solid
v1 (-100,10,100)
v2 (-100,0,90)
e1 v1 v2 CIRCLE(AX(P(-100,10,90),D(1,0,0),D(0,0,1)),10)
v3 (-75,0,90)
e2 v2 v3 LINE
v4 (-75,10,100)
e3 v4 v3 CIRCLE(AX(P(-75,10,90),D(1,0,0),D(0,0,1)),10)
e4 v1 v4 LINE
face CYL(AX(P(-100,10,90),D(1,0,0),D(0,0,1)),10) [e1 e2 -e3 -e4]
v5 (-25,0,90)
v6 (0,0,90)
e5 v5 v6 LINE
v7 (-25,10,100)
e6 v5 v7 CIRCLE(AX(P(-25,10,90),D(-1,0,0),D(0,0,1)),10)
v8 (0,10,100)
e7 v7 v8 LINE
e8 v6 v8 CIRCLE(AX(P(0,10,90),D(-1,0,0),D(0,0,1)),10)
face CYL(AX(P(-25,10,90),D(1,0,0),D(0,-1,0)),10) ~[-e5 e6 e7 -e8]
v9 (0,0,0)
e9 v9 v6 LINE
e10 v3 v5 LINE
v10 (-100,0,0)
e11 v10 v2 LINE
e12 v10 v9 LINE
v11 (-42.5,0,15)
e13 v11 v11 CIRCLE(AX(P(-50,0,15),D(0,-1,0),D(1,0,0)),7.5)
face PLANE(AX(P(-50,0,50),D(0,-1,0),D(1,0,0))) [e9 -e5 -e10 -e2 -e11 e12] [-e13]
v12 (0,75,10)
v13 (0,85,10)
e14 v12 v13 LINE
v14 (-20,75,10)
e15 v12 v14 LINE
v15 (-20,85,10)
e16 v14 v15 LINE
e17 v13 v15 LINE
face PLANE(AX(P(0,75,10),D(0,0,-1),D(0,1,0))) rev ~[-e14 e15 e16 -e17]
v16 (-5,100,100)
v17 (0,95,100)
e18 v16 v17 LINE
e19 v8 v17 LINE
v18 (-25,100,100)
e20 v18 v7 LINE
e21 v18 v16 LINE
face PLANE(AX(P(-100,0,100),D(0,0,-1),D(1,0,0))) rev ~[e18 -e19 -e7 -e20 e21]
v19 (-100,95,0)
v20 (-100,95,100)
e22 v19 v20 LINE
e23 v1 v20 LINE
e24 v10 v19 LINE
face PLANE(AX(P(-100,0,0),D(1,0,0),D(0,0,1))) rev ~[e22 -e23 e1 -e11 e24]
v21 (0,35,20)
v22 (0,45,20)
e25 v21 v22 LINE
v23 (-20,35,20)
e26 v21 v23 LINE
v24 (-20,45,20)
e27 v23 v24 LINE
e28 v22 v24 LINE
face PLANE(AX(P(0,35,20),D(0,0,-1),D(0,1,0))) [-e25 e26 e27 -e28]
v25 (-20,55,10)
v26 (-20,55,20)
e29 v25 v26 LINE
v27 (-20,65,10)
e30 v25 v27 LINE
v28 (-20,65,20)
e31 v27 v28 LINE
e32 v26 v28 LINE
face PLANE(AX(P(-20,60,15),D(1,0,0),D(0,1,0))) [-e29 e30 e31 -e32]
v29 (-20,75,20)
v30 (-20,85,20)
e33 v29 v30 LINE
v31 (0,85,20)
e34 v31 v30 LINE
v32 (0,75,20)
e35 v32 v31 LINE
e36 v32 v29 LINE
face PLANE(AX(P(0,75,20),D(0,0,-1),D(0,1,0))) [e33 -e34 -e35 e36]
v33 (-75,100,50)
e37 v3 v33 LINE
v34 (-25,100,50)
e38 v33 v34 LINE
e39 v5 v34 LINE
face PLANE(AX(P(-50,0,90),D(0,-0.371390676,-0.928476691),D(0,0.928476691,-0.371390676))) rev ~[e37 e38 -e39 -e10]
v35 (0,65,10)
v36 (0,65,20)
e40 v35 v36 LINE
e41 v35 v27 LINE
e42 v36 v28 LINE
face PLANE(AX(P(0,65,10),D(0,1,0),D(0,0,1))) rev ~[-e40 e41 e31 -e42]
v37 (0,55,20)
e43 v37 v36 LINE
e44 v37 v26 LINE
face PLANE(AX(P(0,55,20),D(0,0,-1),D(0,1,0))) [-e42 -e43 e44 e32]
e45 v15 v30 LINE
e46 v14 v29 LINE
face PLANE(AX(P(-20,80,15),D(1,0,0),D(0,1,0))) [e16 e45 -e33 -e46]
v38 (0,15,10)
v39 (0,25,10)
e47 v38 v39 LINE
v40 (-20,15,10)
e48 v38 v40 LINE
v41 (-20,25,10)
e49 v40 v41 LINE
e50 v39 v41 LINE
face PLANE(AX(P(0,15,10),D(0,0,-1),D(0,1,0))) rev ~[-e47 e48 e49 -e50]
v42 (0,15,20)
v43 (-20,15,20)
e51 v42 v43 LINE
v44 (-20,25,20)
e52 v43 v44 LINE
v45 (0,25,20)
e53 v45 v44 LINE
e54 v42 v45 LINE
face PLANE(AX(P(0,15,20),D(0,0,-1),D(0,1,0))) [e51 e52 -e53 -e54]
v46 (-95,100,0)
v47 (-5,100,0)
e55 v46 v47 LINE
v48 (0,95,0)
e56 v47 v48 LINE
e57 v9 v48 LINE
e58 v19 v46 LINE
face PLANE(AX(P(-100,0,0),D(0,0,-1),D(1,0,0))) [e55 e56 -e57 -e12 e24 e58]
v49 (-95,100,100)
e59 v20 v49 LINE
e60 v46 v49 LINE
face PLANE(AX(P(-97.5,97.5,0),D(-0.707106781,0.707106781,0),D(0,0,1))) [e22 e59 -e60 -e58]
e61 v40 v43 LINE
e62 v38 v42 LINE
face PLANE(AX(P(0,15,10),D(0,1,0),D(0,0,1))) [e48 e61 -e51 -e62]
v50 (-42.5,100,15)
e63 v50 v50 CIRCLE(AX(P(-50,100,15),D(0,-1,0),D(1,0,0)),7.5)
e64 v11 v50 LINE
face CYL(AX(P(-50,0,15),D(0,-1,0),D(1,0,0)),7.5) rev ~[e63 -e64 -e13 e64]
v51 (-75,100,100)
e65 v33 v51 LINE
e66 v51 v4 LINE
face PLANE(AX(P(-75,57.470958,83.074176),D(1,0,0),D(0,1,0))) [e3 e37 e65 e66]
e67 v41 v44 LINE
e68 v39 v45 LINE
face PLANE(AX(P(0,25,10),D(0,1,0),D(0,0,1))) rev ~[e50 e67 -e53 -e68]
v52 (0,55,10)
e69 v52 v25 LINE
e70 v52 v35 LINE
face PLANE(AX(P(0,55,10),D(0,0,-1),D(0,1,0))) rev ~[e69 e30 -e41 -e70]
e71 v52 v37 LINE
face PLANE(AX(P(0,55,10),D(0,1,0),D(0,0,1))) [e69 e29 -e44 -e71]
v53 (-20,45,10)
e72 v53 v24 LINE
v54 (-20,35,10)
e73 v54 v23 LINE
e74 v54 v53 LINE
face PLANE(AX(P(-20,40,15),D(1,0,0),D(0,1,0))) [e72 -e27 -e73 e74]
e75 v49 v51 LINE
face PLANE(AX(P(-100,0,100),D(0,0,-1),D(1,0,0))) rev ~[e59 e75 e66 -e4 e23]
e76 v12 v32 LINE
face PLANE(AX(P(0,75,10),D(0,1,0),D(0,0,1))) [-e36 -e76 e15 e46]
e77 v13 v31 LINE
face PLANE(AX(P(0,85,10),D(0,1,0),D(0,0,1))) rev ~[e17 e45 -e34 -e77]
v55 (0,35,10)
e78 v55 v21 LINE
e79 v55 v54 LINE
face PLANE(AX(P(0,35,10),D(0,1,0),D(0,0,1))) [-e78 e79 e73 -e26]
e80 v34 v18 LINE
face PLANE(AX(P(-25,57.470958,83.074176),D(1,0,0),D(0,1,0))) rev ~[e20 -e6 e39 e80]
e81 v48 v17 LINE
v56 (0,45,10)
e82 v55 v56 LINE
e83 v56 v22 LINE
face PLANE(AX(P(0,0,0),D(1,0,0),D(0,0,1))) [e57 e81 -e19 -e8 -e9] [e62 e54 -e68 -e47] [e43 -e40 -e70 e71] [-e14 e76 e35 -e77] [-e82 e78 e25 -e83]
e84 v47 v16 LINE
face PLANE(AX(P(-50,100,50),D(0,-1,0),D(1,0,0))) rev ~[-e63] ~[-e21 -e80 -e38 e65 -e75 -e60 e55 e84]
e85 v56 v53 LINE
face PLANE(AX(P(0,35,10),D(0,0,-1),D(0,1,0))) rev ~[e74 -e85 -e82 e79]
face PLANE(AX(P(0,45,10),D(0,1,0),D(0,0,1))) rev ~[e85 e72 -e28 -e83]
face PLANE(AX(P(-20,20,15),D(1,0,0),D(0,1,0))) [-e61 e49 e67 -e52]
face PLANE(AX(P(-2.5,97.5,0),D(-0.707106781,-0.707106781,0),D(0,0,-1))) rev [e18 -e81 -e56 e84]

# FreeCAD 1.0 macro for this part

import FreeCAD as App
import Part
import Sketcher

V = App.Vector


def edges_at(feature, points):
    """Names of the edges that pass closest to the given points."""
    edges = feature.Shape.Edges
    near = lambda p: min(range(len(edges)), key=lambda i: edges[i].distToShape(Part.Vertex(*p))[0])
    return sorted({f"Edge{near(p) + 1}" for p in points})


def add_polygon(sketch, points):
    """Adds a closed chain of lines whose ends are joined by coincident constraints."""
    first, n = sketch.GeometryCount, len(points)
    for a, b in zip(points, points[1:] + points[:1]):
        sketch.addGeometry(Part.LineSegment(App.Vector(*a, 0), App.Vector(*b, 0)), False)
    for i in range(n):
        sketch.addConstraint(Sketcher.Constraint("Coincident", first + i, 2, first + (i + 1) % n, 1))

doc = App.newDocument("Part")
body = doc.addObject("PartDesign::Body", "Body")

sketch1 = body.newObject("Sketcher::SketchObject", "Sketch")
sketch1.AttachmentSupport = (doc.getObject("XZ_Plane"), [""])
sketch1.MapMode = "FlatFace"
add_polygon(sketch1, [(-100, 100), (-100, 0), (0, 0), (0, 100)])
sketch1.addGeometry(Part.Circle(V(-50, 15, 0), V(0, 0, 1), 7.5), False)
sketch1.addConstraint([
    Sketcher.Constraint("Vertical", 0),
    Sketcher.Constraint("Horizontal", 1),
    Sketcher.Constraint("Vertical", 2),
    Sketcher.Constraint("Horizontal", 3),
    Sketcher.Constraint("Coincident", 1, 2, -1, 1),
    Sketcher.Constraint("Equal", 3, 0),
    Sketcher.Constraint("Diameter", 4, 15.0),
    Sketcher.Constraint("DistanceX", 1, 1, 1, 2, 100.0),
    Sketcher.Constraint("DistanceX", 4, 3, -1, 1, 50.0),
    Sketcher.Constraint("DistanceY", -1, 1, 4, 3, 15.0),
])
pad1 = body.newObject("PartDesign::Pad", "Pad")
pad1.Profile = sketch1
pad1.Length = 100
pad1.Reversed = True

sketch2 = body.newObject("Sketcher::SketchObject", "Sketch001")
sketch2.AttachmentSupport = (doc.getObject("YZ_Plane"), [""])
sketch2.MapMode = "FlatFace"
sketch2.AttachmentOffset = App.Placement(V(0, 0, -50), App.Rotation())
add_polygon(sketch2, [(0, 100), (0, 90), (100, 50), (100, 100)])
sketch2.addConstraint([
    Sketcher.Constraint("Vertical", 0),
    Sketcher.Constraint("Vertical", 2),
    Sketcher.Constraint("Horizontal", 3),
    Sketcher.Constraint("PointOnObject", 0, 2, -2),
    Sketcher.Constraint("DistanceX", 3, 2, 3, 1, 100.0),
    Sketcher.Constraint("DistanceY", 0, 2, 0, 1, 10.0),
    Sketcher.Constraint("DistanceY", 2, 1, 2, 2, 50.0),
    Sketcher.Constraint("DistanceY", -1, 1, 0, 2, 90.0),
])
pocket1 = body.newObject("PartDesign::Pocket", "Pocket")
pocket1.Profile = sketch2
pocket1.Length = 50
pocket1.Midplane = True
doc.recompute()

fillet = body.newObject("PartDesign::Fillet", "Fillet")
fillet.Base = (pocket1, edges_at(pocket1, [(-12.5, 0, 100), (-87.5, 0, 100)]))
fillet.Radius = 10
doc.recompute()

chamfer = body.newObject("PartDesign::Chamfer", "Chamfer")
chamfer.Base = (fillet, edges_at(fillet, [(0, 100, 50), (-100, 100, 50)]))
chamfer.Size = 5

sketch3 = body.newObject("Sketcher::SketchObject", "Sketch002")
sketch3.AttachmentSupport = (doc.getObject("YZ_Plane"), [""])
sketch3.MapMode = "FlatFace"
add_polygon(sketch3, [(15, 20), (15, 10), (25, 10), (25, 20)])
add_polygon(sketch3, [(35, 20), (35, 10), (45, 10), (45, 20)])
add_polygon(sketch3, [(55, 20), (55, 10), (65, 10), (65, 20)])
add_polygon(sketch3, [(75, 20), (75, 10), (85, 10), (85, 20)])
sketch3.addConstraint([
    Sketcher.Constraint("Vertical", 0),
    Sketcher.Constraint("Horizontal", 1),
    Sketcher.Constraint("Vertical", 2),
    Sketcher.Constraint("Horizontal", 3),
    Sketcher.Constraint("Vertical", 4),
    Sketcher.Constraint("Horizontal", 5),
    Sketcher.Constraint("Vertical", 6),
    Sketcher.Constraint("Horizontal", 7),
    Sketcher.Constraint("Vertical", 8),
    Sketcher.Constraint("Horizontal", 9),
    Sketcher.Constraint("Vertical", 10),
    Sketcher.Constraint("Horizontal", 11),
    Sketcher.Constraint("Vertical", 12),
    Sketcher.Constraint("Horizontal", 13),
    Sketcher.Constraint("Vertical", 14),
    Sketcher.Constraint("Horizontal", 15),
    Sketcher.Constraint("Horizontal", 1, 2, 4, 2),
    Sketcher.Constraint("Horizontal", 3, 2, 6, 2),
    Sketcher.Constraint("Horizontal", 5, 2, 8, 2),
    Sketcher.Constraint("Horizontal", 7, 2, 10, 2),
    Sketcher.Constraint("Horizontal", 9, 2, 12, 2),
    Sketcher.Constraint("Horizontal", 11, 2, 14, 2),
    Sketcher.Constraint("Equal", 3, 5),
    Sketcher.Constraint("Equal", 7, 9),
    Sketcher.Constraint("Equal", 11, 13),
    Sketcher.Constraint("Equal", 15, 0),
    Sketcher.Constraint("DistanceX", 1, 1, 1, 2, 10.0),
    Sketcher.Constraint("DistanceX", -1, 1, 0, 2, 15.0),
    Sketcher.Constraint("DistanceY", -1, 1, 0, 2, 10.0),
    Sketcher.Constraint("DistanceX", -1, 1, 4, 2, 35.0),
    Sketcher.Constraint("DistanceX", -1, 1, 8, 2, 55.0),
    Sketcher.Constraint("DistanceX", -1, 1, 12, 2, 75.0),
])
pocket2 = body.newObject("PartDesign::Pocket", "Pocket001")
pocket2.Profile = sketch3
pocket2.Length = 20

doc.recompute()
